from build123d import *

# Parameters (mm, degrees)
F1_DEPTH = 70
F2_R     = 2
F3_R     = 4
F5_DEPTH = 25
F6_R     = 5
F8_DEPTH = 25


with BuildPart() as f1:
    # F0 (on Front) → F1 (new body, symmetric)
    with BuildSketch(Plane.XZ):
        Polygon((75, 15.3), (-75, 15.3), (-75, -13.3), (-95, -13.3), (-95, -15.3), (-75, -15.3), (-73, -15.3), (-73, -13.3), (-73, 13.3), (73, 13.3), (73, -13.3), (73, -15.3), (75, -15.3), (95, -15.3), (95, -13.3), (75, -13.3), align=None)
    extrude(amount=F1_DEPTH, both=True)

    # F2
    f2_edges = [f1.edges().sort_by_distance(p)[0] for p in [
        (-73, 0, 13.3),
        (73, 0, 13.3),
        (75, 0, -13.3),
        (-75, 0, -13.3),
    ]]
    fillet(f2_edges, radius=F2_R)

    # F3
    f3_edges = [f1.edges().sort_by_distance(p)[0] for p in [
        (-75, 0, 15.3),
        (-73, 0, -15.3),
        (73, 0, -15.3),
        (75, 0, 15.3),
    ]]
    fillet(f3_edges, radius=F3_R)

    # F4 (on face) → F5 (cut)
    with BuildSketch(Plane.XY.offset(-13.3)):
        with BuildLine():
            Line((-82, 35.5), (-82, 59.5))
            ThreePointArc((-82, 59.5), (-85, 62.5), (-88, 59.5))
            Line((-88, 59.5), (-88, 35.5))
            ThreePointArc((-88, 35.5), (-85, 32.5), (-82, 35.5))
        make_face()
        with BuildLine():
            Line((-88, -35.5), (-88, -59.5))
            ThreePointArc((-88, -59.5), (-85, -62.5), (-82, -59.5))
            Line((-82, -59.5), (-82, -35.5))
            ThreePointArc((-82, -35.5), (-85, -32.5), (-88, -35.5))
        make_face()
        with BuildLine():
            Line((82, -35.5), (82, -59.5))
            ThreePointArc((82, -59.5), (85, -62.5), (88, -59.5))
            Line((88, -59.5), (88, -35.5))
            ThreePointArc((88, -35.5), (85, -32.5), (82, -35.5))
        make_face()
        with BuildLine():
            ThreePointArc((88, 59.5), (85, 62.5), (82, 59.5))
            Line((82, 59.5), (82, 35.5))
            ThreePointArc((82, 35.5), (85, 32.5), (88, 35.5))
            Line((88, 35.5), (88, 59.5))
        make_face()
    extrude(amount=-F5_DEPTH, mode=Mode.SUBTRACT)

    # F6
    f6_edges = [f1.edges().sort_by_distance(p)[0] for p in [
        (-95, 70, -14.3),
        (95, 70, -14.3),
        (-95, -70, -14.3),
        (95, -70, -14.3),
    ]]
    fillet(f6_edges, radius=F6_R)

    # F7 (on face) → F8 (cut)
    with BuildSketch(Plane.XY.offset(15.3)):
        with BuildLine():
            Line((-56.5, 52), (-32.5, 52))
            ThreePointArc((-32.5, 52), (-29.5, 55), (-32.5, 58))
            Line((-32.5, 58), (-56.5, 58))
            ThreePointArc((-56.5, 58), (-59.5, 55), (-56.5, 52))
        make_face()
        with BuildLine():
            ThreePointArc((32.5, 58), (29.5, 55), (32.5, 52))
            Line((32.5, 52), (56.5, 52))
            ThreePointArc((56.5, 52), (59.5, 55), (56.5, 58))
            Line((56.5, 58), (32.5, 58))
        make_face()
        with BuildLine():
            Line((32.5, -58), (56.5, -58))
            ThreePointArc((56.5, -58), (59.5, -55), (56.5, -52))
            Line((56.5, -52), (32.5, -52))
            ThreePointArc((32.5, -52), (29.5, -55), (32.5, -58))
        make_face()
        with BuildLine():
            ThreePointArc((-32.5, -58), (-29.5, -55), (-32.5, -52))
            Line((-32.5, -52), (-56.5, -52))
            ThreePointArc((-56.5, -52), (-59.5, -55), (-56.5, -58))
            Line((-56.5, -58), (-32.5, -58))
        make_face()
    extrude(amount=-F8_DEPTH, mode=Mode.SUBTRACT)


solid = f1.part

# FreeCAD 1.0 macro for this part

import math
import FreeCAD as App
import Part
import Sketcher

V = App.Vector


def edges_at(feature, points):
    """Names of the edges that pass closest to the given points."""
    edges = feature.Shape.Edges
    near = lambda p: min(range(len(edges)), key=lambda i: edges[i].distToShape(Part.Vertex(*p))[0])
    return sorted({f"Edge{near(p) + 1}" for p in points})

doc = App.newDocument("Part")
body = doc.addObject("PartDesign::Body", "Body")

sketch1 = body.newObject("Sketcher::SketchObject", "Sketch")
sketch1.AttachmentSupport = (doc.getObject("XZ_Plane"), [""])
sketch1.MapMode = "FlatFace"
sketch1.addGeometry([
    Part.LineSegment(V(75, 15.3, 0), V(-75, 15.3, 0)),
    Part.LineSegment(V(-75, 15.3, 0), V(-75, -13.3, 0)),
    Part.LineSegment(V(-75, -13.3, 0), V(-95, -13.3, 0)),
    Part.LineSegment(V(-95, -13.3, 0), V(-95, -15.3, 0)),
    Part.LineSegment(V(-95, -15.3, 0), V(-73, -15.3, 0)),
    Part.LineSegment(V(-73, -15.3, 0), V(-73, 13.3, 0)),
    Part.LineSegment(V(-73, 13.3, 0), V(73, 13.3, 0)),
    Part.LineSegment(V(73, 13.3, 0), V(73, -15.3, 0)),
    Part.LineSegment(V(73, -15.3, 0), V(95, -15.3, 0)),
    Part.LineSegment(V(95, -15.3, 0), V(95, -13.3, 0)),
    Part.LineSegment(V(95, -13.3, 0), V(75, -13.3, 0)),
    Part.LineSegment(V(75, -13.3, 0), V(75, 15.3, 0)),
], False)
sketch1.addConstraint([
    Sketcher.Constraint("Coincident", 0, 2, 1, 1),
    Sketcher.Constraint("Coincident", 1, 2, 2, 1),
    Sketcher.Constraint("Coincident", 2, 2, 3, 1),
    Sketcher.Constraint("Coincident", 3, 2, 4, 1),
    Sketcher.Constraint("Coincident", 4, 2, 5, 1),
    Sketcher.Constraint("Coincident", 5, 2, 6, 1),
    Sketcher.Constraint("Coincident", 6, 2, 7, 1),
    Sketcher.Constraint("Coincident", 7, 2, 8, 1),
    Sketcher.Constraint("Coincident", 8, 2, 9, 1),
    Sketcher.Constraint("Coincident", 9, 2, 10, 1),
    Sketcher.Constraint("Coincident", 10, 2, 11, 1),
    Sketcher.Constraint("Coincident", 11, 2, 0, 1),
    Sketcher.Constraint("Horizontal", 0),
    Sketcher.Constraint("Vertical", 1),
    Sketcher.Constraint("Horizontal", 2),
    Sketcher.Constraint("Vertical", 3),
    Sketcher.Constraint("Horizontal", 4),
    Sketcher.Constraint("Vertical", 5),
    Sketcher.Constraint("Horizontal", 6),
    Sketcher.Constraint("Vertical", 7),
    Sketcher.Constraint("Horizontal", 8),
    Sketcher.Constraint("Vertical", 9),
    Sketcher.Constraint("Horizontal", 10),
    Sketcher.Constraint("Vertical", 11),
    Sketcher.Constraint("Symmetric", 4, 2, 7, 2, -2),
    Sketcher.Constraint("Symmetric", 2, 2, 9, 2, -2),
    Sketcher.Constraint("Equal", 2, 10),
    Sketcher.Constraint("Equal", 1, 5),
    Sketcher.Constraint("DistanceX", 0, 2, 0, 1, 150.0),
    Sketcher.Constraint("DistanceX", 2, 2, 2, 1, 20.0),
    Sketcher.Constraint("DistanceX", 4, 1, 4, 2, 22.0),
    Sketcher.Constraint("DistanceY", 3, 2, 3, 1, 2.0),
    Sketcher.Constraint("DistanceY", 1, 2, 1, 1, 28.6),
    Sketcher.Constraint("DistanceY", -1, 1, 0, 2, 15.3),
])
pad1 = body.newObject("PartDesign::Pad", "Pad")
pad1.Profile = sketch1
pad1.Length = 140
pad1.Midplane = True
doc.recompute()

fillet = body.newObject("PartDesign::Fillet", "Fillet")
fillet.Base = (pad1, edges_at(pad1, [
    (-73, 0, 13.3),
    (73, 0, 13.3),
    (75, 0, -13.3),
    (-75, 0, -13.3),
]))
fillet.Radius = 2
doc.recompute()

fillet2 = body.newObject("PartDesign::Fillet", "Fillet001")
fillet2.Base = (fillet, edges_at(fillet, [
    (-75, 0, 15.3),
    (-73, 0, -15.3),
    (73, 0, -15.3),
    (75, 0, 15.3),
]))
fillet2.Radius = 4

sketch2 = body.newObject("Sketcher::SketchObject", "Sketch001")
sketch2.AttachmentSupport = (doc.getObject("XY_Plane"), [""])
sketch2.MapMode = "FlatFace"
sketch2.AttachmentOffset = App.Placement(V(0, 0, -13.3), App.Rotation())
sketch2.addGeometry([
    Part.LineSegment(V(-82, 35.5, 0), V(-82, 59.5, 0)),
    Part.ArcOfCircle(Part.Circle(V(-85, 59.5, 0), V(0, 0, 1), 3), math.radians(0), math.radians(180)),
    Part.LineSegment(V(-88, 59.5, 0), V(-88, 35.5, 0)),
    Part.ArcOfCircle(Part.Circle(V(-85, 35.5, 0), V(0, 0, 1), 3), math.radians(180), math.radians(360)),
    Part.LineSegment(V(-88, -35.5, 0), V(-88, -59.5, 0)),
    Part.ArcOfCircle(Part.Circle(V(-85, -59.5, 0), V(0, 0, 1), 3), math.radians(180), math.radians(360)),
    Part.LineSegment(V(-82, -59.5, 0), V(-82, -35.5, 0)),
    Part.ArcOfCircle(Part.Circle(V(-85, -35.5, 0), V(0, 0, 1), 3), math.radians(0), math.radians(180)),
    Part.LineSegment(V(82, -35.5, 0), V(82, -59.5, 0)),
    Part.ArcOfCircle(Part.Circle(V(85, -59.5, 0), V(0, 0, 1), 3), math.radians(180), math.radians(360)),
    Part.LineSegment(V(88, -59.5, 0), V(88, -35.5, 0)),
    Part.ArcOfCircle(Part.Circle(V(85, -35.5, 0), V(0, 0, 1), 3), math.radians(0), math.radians(180)),
    Part.ArcOfCircle(Part.Circle(V(85, 59.5, 0), V(0, 0, 1), 3), math.radians(0), math.radians(180)),
    Part.LineSegment(V(82, 59.5, 0), V(82, 35.5, 0)),
    Part.ArcOfCircle(Part.Circle(V(85, 35.5, 0), V(0, 0, 1), 3), math.radians(180), math.radians(360)),
    Part.LineSegment(V(88, 35.5, 0), V(88, 59.5, 0)),
], False)
sketch2.addConstraint([
    Sketcher.Constraint("Tangent", 0, 2, 1, 1),
    Sketcher.Constraint("Tangent", 1, 2, 2, 1),
    Sketcher.Constraint("Tangent", 2, 2, 3, 1),
    Sketcher.Constraint("Tangent", 3, 2, 0, 1),
    Sketcher.Constraint("Tangent", 4, 2, 5, 1),
    Sketcher.Constraint("Tangent", 5, 2, 6, 1),
    Sketcher.Constraint("Tangent", 6, 2, 7, 1),
    Sketcher.Constraint("Tangent", 7, 2, 4, 1),
    Sketcher.Constraint("Tangent", 8, 2, 9, 1),
    Sketcher.Constraint("Tangent", 9, 2, 10, 1),
    Sketcher.Constraint("Tangent", 10, 2, 11, 1),
    Sketcher.Constraint("Tangent", 11, 2, 8, 1),
    Sketcher.Constraint("Tangent", 12, 2, 13, 1),
    Sketcher.Constraint("Tangent", 13, 2, 14, 1),
    Sketcher.Constraint("Tangent", 14, 2, 15, 1),
    Sketcher.Constraint("Tangent", 15, 2, 12, 1),
    Sketcher.Constraint("Vertical", 0),
    Sketcher.Constraint("Vertical", 2),
    Sketcher.Constraint("Vertical", 4),
    Sketcher.Constraint("Vertical", 6),
    Sketcher.Constraint("Vertical", 8),
    Sketcher.Constraint("Vertical", 10),
    Sketcher.Constraint("Vertical", 13),
    Sketcher.Constraint("Vertical", 15),
    Sketcher.Constraint("Equal", 3, 5),
    Sketcher.Constraint("Equal", 7, 9),
    Sketcher.Constraint("Equal", 11, 12),
    Sketcher.Constraint("Symmetric", 1, 3, 9, 3, -1, 1),
    Sketcher.Constraint("Symmetric", 5, 3, 12, 3, -1, 1),
    Sketcher.Constraint("Symmetric", 5, 3, 9, 3, -2),
    Sketcher.Constraint("Horizontal", 7, 3, 11, 3),
    Sketcher.Constraint("Horizontal", 3, 3, 14, 3),
    Sketcher.Constraint("Equal", 2, 4),
    Sketcher.Constraint("Radius", 1, 3.0),
    Sketcher.Constraint("DistanceY", 0, 1, 0, 2, 24.0),
    Sketcher.Constraint("DistanceX", 1, 3, -1, 1, 85.0),
    Sketcher.Constraint("DistanceY", 5, 3, 3, 3, 95.0),
])
pocket1 = body.newObject("PartDesign::Pocket", "Pocket")
pocket1.Profile = sketch2
pocket1.Length = 25
doc.recompute()

fillet3 = body.newObject("PartDesign::Fillet", "Fillet002")
fillet3.Base = (pocket1, edges_at(pocket1, [
    (-95, 70, -14.3),
    (95, 70, -14.3),
    (-95, -70, -14.3),
    (95, -70, -14.3),
]))
fillet3.Radius = 5

sketch3 = body.newObject("Sketcher::SketchObject", "Sketch002")
sketch3.AttachmentSupport = (doc.getObject("XY_Plane"), [""])
sketch3.MapMode = "FlatFace"
sketch3.AttachmentOffset = App.Placement(V(0, 0, 15.3), App.Rotation())
sketch3.addGeometry([
    Part.LineSegment(V(-56.5, 52, 0), V(-32.5, 52, 0)),
    Part.ArcOfCircle(Part.Circle(V(-32.5, 55, 0), V(0, 0, 1), 3), math.radians(-90), math.radians(90)),
    Part.LineSegment(V(-32.5, 58, 0), V(-56.5, 58, 0)),
    Part.ArcOfCircle(Part.Circle(V(-56.5, 55, 0), V(0, 0, 1), 3), math.radians(90), math.radians(270)),
    Part.ArcOfCircle(Part.Circle(V(32.5, 55, 0), V(0, 0, 1), 3), math.radians(90), math.radians(270)),
    Part.LineSegment(V(32.5, 52, 0), V(56.5, 52, 0)),
    Part.ArcOfCircle(Part.Circle(V(56.5, 55, 0), V(0, 0, 1), 3), math.radians(-90), math.radians(90)),
    Part.LineSegment(V(56.5, 58, 0), V(32.5, 58, 0)),
    Part.LineSegment(V(32.5, -58, 0), V(56.5, -58, 0)),
    Part.ArcOfCircle(Part.Circle(V(56.5, -55, 0), V(0, 0, 1), 3), math.radians(-90), math.radians(90)),
    Part.LineSegment(V(56.5, -52, 0), V(32.5, -52, 0)),
    Part.ArcOfCircle(Part.Circle(V(32.5, -55, 0), V(0, 0, 1), 3), math.radians(90), math.radians(270)),
    Part.ArcOfCircle(Part.Circle(V(-32.5, -55, 0), V(0, 0, 1), 3), math.radians(-90), math.radians(90)),
    Part.LineSegment(V(-32.5, -52, 0), V(-56.5, -52, 0)),
    Part.ArcOfCircle(Part.Circle(V(-56.5, -55, 0), V(0, 0, 1), 3), math.radians(90), math.radians(270)),
    Part.LineSegment(V(-56.5, -58, 0), V(-32.5, -58, 0)),
], False)
sketch3.addConstraint([
    Sketcher.Constraint("Tangent", 0, 2, 1, 1),
    Sketcher.Constraint("Tangent", 1, 2, 2, 1),
    Sketcher.Constraint("Tangent", 2, 2, 3, 1),
    Sketcher.Constraint("Tangent", 3, 2, 0, 1),
    Sketcher.Constraint("Tangent", 4, 2, 5, 1),
    Sketcher.Constraint("Tangent", 5, 2, 6, 1),
    Sketcher.Constraint("Tangent", 6, 2, 7, 1),
    Sketcher.Constraint("Tangent", 7, 2, 4, 1),
    Sketcher.Constraint("Tangent", 8, 2, 9, 1),
    Sketcher.Constraint("Tangent", 9, 2, 10, 1),
    Sketcher.Constraint("Tangent", 10, 2, 11, 1),
    Sketcher.Constraint("Tangent", 11, 2, 8, 1),
    Sketcher.Constraint("Tangent", 12, 2, 13, 1),
    Sketcher.Constraint("Tangent", 13, 2, 14, 1),
    Sketcher.Constraint("Tangent", 14, 2, 15, 1),
    Sketcher.Constraint("Tangent", 15, 2, 12, 1),
    Sketcher.Constraint("Horizontal", 0),
    Sketcher.Constraint("Horizontal", 2),
    Sketcher.Constraint("Horizontal", 5),
    Sketcher.Constraint("Horizontal", 7),
    Sketcher.Constraint("Horizontal", 8),
    Sketcher.Constraint("Horizontal", 10),
    Sketcher.Constraint("Horizontal", 13),
    Sketcher.Constraint("Horizontal", 15),
    Sketcher.Constraint("Equal", 3, 4),
    Sketcher.Constraint("Equal", 6, 9),
    Sketcher.Constraint("Equal", 11, 12),
    Sketcher.Constraint("Symmetric", 3, 3, 9, 3, -1, 1),
    Sketcher.Constraint("Symmetric", 4, 3, 12, 3, -1, 1),
    Sketcher.Constraint("Symmetric", 1, 3, 4, 3, -2),
    Sketcher.Constraint("Vertical", 6, 3, 9, 3),
    Sketcher.Constraint("Vertical", 4, 3, 11, 3),
    Sketcher.Constraint("Vertical", 3, 3, 14, 3),
    Sketcher.Constraint("Radius", 1, 3.0),
    Sketcher.Constraint("DistanceX", 0, 1, 0, 2, 24.0),
    Sketcher.Constraint("DistanceY", -1, 1, 1, 3, 55.0),
    Sketcher.Constraint("DistanceX", 1, 3, 4, 3, 65.0),
])
pocket2 = body.newObject("PartDesign::Pocket", "Pocket001")
pocket2.Profile = sketch3
pocket2.Length = 25

doc.recompute()
